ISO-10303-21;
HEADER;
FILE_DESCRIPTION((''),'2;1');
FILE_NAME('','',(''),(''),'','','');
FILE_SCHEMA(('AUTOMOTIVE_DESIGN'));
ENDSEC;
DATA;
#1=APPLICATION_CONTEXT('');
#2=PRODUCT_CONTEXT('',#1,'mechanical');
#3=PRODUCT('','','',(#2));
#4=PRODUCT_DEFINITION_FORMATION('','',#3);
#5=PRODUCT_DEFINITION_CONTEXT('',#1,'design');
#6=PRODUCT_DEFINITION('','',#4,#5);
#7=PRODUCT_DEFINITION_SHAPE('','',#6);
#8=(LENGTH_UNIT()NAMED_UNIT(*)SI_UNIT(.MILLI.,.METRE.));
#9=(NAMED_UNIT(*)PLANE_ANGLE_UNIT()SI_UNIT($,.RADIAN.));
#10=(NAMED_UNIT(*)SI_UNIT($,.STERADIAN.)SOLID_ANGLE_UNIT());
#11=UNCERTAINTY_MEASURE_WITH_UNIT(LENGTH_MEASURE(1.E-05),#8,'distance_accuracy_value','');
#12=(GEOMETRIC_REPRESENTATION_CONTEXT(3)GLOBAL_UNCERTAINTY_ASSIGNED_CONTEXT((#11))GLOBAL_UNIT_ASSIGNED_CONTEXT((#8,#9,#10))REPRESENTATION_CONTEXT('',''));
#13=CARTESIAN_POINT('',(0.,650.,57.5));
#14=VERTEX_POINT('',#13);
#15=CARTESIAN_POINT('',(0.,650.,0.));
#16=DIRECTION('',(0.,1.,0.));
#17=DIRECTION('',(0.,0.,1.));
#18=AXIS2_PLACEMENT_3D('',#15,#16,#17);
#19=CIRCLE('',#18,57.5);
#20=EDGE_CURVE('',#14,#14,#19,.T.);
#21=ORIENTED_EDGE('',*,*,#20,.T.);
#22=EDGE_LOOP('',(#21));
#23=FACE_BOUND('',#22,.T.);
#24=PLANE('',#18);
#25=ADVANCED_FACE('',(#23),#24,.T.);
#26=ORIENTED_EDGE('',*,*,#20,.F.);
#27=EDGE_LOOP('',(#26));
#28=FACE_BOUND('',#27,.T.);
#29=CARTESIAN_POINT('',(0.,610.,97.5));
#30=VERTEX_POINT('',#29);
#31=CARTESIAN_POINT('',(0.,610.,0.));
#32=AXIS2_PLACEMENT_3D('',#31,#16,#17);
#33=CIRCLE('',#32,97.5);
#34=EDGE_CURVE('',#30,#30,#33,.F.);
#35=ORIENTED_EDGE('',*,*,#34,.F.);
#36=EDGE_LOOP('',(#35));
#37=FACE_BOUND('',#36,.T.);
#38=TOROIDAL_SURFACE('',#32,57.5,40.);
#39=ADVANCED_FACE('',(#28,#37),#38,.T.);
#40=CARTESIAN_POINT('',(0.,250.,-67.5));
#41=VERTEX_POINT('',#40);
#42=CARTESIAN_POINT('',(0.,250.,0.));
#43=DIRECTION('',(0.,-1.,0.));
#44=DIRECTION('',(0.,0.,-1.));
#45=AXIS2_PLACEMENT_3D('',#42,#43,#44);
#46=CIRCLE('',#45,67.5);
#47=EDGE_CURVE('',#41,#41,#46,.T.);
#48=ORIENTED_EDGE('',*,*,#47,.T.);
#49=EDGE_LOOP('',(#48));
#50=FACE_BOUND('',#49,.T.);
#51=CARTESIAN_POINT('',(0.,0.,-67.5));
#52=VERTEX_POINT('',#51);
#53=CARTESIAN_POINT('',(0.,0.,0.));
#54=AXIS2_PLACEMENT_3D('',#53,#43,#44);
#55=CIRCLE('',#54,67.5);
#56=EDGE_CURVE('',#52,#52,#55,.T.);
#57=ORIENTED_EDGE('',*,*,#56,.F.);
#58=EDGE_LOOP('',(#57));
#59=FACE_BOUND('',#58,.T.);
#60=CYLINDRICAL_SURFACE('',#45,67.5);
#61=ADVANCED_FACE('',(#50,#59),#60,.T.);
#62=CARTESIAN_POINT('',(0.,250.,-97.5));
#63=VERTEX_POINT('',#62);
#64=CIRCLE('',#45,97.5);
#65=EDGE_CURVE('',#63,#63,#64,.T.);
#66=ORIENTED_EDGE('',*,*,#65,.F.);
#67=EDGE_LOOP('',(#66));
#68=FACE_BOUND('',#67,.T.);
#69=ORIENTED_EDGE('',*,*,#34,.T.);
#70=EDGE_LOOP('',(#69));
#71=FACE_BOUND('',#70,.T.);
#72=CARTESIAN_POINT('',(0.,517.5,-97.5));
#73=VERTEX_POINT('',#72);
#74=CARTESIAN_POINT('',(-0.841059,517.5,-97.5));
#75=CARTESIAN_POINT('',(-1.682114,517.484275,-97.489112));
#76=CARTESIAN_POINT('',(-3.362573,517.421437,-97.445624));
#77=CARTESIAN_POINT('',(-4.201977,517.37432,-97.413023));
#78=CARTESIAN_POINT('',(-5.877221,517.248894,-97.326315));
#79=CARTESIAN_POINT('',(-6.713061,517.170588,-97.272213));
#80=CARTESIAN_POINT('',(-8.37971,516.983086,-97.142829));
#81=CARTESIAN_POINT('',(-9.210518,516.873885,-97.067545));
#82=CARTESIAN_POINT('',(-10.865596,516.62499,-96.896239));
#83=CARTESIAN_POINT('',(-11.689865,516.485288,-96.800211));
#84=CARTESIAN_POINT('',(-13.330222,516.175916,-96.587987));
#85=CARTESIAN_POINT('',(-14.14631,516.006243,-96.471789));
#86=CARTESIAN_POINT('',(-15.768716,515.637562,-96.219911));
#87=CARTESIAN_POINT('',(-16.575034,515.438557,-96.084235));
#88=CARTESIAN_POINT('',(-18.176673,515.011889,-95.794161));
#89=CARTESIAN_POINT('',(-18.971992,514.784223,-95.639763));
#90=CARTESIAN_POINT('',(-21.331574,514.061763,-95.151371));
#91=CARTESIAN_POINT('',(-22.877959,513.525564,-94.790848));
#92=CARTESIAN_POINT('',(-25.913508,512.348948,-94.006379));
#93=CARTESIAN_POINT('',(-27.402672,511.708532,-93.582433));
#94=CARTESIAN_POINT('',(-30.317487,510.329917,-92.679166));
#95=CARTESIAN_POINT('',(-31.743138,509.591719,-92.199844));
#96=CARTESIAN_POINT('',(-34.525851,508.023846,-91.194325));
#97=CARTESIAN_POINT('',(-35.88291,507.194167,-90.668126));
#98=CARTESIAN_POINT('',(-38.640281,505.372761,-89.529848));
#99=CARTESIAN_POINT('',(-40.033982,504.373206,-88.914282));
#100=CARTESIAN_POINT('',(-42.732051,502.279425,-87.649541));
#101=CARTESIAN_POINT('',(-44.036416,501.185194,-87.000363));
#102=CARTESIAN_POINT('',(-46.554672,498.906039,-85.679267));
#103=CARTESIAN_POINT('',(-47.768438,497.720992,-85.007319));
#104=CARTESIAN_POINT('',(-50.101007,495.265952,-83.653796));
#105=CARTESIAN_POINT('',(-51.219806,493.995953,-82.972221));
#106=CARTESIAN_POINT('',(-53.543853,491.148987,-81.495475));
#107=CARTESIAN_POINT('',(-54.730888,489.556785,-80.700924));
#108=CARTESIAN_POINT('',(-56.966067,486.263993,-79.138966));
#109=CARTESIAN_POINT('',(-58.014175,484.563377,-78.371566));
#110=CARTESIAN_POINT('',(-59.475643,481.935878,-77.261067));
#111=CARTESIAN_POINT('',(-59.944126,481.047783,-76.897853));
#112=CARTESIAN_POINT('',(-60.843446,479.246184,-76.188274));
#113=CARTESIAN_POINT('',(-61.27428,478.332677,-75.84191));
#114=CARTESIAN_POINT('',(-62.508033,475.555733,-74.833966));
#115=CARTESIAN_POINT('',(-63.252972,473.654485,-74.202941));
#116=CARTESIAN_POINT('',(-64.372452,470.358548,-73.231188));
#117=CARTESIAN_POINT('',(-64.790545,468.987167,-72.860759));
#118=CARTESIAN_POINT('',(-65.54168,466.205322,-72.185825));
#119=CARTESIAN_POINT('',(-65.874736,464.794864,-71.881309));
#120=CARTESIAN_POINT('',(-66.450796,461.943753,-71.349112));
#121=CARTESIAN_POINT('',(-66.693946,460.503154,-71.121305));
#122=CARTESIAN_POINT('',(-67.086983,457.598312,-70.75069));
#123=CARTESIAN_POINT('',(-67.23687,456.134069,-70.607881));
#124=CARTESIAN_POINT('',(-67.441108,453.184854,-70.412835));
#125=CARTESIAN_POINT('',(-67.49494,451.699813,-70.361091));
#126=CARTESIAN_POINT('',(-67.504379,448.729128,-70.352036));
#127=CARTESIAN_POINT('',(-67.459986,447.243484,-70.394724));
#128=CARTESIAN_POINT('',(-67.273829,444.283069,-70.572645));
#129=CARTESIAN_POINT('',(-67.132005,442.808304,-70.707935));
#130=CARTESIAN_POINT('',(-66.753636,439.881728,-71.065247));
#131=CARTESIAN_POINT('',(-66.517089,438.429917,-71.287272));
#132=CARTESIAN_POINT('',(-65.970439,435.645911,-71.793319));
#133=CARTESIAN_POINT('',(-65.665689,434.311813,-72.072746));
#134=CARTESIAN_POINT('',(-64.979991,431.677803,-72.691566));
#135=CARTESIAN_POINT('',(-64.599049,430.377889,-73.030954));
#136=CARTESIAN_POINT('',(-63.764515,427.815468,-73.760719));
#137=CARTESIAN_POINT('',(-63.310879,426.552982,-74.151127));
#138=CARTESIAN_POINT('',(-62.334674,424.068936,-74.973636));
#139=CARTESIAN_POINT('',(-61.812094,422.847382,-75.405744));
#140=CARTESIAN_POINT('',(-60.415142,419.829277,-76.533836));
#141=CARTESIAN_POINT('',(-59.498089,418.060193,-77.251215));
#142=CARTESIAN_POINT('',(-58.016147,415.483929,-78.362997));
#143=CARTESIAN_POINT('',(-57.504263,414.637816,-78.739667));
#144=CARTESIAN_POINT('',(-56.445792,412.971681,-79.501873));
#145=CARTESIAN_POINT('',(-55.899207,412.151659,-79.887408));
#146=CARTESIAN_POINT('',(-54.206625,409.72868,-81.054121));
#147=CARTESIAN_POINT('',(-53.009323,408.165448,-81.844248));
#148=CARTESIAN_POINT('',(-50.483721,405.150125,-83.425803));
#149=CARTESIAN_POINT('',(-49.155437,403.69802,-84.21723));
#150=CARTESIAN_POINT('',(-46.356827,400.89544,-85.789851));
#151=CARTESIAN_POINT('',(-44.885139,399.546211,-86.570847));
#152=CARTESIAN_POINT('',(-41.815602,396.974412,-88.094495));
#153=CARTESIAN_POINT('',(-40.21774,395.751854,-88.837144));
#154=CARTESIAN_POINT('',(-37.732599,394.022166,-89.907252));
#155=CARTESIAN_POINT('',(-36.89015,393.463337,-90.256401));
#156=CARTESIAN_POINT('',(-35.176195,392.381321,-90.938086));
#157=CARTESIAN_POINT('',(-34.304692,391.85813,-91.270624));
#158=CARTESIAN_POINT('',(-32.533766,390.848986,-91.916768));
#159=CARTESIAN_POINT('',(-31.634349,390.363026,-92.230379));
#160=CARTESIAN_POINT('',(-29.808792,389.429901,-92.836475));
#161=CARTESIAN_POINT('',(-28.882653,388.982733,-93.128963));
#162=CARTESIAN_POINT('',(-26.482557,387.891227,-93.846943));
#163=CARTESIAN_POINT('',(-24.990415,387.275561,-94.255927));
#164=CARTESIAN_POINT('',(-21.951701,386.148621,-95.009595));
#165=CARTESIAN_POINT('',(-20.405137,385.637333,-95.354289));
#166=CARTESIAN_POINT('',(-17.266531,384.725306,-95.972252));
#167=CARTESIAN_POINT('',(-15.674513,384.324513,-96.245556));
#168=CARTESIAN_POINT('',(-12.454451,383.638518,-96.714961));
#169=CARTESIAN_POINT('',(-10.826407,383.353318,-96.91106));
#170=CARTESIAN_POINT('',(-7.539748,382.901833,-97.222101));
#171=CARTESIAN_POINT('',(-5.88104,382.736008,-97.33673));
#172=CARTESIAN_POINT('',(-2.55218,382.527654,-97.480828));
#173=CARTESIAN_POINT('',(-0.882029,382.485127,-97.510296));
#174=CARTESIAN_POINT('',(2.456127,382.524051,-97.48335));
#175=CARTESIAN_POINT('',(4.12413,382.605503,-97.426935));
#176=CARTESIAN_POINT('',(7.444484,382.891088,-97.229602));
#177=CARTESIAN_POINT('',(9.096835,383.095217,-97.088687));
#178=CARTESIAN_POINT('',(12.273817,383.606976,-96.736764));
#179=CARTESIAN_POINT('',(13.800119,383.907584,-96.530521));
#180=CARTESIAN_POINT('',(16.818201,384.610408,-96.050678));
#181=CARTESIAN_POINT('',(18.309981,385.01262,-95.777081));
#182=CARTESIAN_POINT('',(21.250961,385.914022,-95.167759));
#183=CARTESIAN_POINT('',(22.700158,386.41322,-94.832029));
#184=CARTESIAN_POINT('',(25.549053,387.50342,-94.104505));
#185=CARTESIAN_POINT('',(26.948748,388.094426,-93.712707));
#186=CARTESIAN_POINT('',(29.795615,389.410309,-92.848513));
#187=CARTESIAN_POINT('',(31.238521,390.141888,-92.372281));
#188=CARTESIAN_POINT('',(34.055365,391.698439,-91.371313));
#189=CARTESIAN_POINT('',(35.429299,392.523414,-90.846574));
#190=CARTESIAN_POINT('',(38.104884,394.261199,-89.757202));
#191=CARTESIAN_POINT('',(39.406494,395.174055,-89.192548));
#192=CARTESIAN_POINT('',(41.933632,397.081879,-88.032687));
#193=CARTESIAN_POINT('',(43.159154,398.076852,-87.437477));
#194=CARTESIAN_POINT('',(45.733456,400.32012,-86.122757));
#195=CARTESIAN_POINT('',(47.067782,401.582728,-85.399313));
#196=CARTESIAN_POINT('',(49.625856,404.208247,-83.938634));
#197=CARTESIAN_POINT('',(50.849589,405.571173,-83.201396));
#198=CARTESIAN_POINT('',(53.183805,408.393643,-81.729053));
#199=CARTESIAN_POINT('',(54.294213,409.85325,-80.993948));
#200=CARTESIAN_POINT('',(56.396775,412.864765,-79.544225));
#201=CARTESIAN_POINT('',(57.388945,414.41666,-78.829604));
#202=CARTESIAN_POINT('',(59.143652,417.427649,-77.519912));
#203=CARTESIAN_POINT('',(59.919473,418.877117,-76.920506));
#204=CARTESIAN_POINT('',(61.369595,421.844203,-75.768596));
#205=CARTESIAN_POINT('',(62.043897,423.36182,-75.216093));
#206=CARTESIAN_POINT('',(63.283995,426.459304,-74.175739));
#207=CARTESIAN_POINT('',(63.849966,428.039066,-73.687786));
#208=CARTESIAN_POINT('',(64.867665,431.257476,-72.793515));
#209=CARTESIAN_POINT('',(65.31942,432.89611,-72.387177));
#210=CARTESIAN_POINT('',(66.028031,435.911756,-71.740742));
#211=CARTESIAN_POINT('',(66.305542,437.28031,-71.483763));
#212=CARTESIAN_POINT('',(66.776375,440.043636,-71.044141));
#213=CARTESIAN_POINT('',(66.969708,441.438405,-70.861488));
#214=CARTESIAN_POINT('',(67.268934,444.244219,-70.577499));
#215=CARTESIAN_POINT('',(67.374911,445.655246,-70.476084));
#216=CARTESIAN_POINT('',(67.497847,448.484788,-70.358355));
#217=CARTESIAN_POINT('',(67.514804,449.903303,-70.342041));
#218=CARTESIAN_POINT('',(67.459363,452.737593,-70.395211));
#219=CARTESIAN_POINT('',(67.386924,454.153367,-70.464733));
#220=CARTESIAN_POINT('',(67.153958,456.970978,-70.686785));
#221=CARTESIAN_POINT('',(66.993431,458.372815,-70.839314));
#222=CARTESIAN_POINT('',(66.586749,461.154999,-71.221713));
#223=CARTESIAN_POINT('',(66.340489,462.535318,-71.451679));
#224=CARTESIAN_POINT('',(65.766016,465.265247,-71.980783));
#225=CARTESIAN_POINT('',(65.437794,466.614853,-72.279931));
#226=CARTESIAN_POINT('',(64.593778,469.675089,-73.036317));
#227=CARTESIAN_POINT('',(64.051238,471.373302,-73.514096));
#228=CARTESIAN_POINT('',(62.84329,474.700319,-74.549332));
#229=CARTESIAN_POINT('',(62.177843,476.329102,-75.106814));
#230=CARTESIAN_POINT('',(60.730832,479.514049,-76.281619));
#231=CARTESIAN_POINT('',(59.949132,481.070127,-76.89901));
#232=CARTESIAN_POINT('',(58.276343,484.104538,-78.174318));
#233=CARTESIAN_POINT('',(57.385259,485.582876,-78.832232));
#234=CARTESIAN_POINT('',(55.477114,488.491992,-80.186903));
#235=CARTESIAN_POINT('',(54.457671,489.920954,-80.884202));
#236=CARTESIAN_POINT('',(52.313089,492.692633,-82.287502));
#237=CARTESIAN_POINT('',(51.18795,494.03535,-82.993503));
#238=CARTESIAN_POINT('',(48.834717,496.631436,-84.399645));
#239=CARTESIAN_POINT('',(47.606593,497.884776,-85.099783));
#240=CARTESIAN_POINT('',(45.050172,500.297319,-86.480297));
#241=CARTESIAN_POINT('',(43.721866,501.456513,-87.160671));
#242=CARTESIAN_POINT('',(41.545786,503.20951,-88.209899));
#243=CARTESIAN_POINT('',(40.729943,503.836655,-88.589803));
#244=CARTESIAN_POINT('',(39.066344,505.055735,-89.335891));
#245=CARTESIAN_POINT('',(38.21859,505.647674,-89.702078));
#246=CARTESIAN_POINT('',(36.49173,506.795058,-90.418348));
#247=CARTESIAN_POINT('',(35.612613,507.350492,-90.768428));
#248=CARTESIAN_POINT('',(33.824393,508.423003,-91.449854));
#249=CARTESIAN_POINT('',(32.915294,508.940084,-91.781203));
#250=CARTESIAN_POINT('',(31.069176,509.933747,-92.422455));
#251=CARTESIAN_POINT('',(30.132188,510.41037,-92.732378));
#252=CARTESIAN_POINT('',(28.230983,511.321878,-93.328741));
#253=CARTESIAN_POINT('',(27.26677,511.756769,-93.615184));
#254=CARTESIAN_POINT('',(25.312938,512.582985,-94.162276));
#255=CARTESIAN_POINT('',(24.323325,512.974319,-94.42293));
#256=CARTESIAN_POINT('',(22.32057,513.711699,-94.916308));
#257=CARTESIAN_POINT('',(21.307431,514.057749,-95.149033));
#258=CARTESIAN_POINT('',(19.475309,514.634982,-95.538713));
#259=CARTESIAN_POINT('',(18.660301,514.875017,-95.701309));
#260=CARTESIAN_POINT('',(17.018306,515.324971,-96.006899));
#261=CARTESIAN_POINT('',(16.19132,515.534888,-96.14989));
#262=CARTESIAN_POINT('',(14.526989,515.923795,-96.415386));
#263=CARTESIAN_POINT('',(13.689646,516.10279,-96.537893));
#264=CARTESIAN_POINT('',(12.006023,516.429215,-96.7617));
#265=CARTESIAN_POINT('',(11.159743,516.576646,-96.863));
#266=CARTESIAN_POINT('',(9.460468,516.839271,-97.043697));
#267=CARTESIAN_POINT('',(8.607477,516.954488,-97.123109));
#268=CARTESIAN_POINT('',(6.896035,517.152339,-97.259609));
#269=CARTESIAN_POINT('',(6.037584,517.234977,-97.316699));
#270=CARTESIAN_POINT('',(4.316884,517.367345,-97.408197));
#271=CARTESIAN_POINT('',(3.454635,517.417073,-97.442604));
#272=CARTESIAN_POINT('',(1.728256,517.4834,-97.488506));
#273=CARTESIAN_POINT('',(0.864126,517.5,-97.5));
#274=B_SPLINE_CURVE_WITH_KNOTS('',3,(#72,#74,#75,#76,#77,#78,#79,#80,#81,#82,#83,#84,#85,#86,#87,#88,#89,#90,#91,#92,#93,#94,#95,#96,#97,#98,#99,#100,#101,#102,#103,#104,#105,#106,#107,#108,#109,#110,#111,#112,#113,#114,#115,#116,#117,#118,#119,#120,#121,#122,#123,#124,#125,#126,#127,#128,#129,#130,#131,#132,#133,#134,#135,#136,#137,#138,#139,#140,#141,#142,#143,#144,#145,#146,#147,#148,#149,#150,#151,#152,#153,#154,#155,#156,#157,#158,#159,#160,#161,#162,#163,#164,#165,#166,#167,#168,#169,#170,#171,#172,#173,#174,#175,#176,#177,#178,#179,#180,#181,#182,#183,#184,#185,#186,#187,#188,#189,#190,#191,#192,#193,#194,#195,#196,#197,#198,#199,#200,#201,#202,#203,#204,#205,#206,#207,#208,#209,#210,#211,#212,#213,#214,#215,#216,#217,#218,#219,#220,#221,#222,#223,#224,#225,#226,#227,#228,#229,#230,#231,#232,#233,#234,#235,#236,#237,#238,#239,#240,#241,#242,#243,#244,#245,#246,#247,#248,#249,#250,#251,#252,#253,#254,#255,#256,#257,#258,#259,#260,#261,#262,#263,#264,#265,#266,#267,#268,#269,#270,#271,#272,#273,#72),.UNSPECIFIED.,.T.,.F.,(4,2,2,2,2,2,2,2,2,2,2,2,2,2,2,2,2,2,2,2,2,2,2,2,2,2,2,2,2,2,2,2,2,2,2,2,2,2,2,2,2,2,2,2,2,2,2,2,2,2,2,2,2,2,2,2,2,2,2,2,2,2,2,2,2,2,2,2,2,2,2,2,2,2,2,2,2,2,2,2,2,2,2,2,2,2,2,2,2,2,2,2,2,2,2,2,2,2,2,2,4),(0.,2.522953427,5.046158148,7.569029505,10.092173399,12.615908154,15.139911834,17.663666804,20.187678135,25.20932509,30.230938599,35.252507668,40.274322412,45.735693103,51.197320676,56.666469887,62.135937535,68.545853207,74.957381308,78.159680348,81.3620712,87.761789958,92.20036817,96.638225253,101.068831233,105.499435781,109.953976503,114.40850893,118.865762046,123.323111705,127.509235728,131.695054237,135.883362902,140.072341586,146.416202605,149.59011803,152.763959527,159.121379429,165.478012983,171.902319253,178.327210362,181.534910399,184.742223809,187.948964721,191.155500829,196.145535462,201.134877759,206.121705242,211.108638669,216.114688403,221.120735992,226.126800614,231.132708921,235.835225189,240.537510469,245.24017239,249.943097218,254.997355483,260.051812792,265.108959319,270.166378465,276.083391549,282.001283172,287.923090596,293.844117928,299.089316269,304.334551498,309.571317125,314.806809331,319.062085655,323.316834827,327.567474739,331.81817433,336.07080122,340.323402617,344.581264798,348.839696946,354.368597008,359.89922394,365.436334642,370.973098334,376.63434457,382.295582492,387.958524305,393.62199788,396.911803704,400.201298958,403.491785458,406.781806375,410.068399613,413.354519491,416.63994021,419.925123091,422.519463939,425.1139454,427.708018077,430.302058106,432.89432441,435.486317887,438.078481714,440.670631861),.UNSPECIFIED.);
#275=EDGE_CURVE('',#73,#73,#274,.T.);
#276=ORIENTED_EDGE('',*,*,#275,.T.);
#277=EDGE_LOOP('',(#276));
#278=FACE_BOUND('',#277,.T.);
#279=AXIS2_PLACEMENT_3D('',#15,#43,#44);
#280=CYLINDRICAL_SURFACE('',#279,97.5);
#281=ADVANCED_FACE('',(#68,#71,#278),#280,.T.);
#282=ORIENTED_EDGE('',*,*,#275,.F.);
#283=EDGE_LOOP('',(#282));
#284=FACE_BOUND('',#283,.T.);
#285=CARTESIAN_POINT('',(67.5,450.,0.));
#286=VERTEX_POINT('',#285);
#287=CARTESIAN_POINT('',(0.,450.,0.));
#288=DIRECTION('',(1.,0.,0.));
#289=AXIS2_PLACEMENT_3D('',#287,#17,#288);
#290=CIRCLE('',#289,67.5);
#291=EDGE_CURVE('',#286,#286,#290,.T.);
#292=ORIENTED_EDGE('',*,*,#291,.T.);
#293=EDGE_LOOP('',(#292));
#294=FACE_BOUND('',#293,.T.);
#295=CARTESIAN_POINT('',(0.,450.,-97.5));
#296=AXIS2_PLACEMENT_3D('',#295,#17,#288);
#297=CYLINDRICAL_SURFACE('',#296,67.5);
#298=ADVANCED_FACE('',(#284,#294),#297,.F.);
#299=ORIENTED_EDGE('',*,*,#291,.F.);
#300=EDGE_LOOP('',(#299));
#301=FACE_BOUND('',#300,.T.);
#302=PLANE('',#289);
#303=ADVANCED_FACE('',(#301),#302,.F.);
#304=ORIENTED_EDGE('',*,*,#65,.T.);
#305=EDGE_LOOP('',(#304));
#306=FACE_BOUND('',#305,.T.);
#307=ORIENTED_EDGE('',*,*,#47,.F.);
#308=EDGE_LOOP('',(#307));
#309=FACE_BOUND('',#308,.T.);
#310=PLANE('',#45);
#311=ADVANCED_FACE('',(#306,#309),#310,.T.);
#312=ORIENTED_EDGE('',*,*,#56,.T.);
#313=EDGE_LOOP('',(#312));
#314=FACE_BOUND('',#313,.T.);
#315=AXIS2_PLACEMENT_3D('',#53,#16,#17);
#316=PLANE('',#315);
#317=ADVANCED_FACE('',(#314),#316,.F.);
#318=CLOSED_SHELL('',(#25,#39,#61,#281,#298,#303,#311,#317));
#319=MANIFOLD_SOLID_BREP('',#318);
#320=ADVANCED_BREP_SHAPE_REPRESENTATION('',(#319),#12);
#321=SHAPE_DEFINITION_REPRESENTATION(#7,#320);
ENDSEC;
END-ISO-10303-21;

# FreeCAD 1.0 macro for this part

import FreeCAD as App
import Part
import Sketcher
Q = App.Units.Quantity


def edges_at(feature, points):
    """Names of the edges that pass closest to the given points."""
    edges = feature.Shape.Edges
    near = lambda p: min(range(len(edges)), key=lambda i: edges[i].distToShape(Part.Vertex(*p))[0])
    return sorted({f"Edge{near(p) + 1}" for p in points})

doc = App.newDocument("Part")
body = doc.addObject("PartDesign::Body", "Body")

sketch1 = doc.addObject("Sketcher::SketchObject", "Sketch")
body.addObject(sketch1)
sketch1.AttachmentSupport = (doc.XZ_Plane, [""])
sketch1.MapMode = "FlatFace"
sketch1.addGeometry(Part.Circle(App.Vector(0, 0, 0), App.Vector(0, 0, 1), 98), False)
sketch1.addConstraint([
    Sketcher.Constraint("Coincident", 0, 3, -1, 1),
    Sketcher.Constraint("Diameter", 0, Q("195 mm")),
])
pad1 = doc.addObject("PartDesign::Pad", "Pad")
body.addObject(pad1)
pad1.Profile = sketch1
pad1.Length = 650
pad1.Reversed = True

sketch2 = doc.addObject("Sketcher::SketchObject", "Sketch001")
body.addObject(sketch2)
sketch2.AttachmentSupport = (doc.XZ_Plane, [""])
sketch2.MapMode = "FlatFace"
sketch2.addGeometry([
    Part.Circle(App.Vector(0, 0, 0), App.Vector(0, 0, 1), 98),
    Part.Circle(App.Vector(0, 0, 0), App.Vector(0, 0, 1), 68),
], False)
sketch2.addConstraint([
    Sketcher.Constraint("Coincident", 0, 3, -1, 1),
    Sketcher.Constraint("Coincident", 1, 3, -1, 1),
    Sketcher.Constraint("Diameter", 0, Q("195 mm")),
    Sketcher.Constraint("Diameter", 1, Q("135 mm")),
])
pocket1 = doc.addObject("PartDesign::Pocket", "Pocket")
body.addObject(pocket1)
pocket1.Profile = sketch2
pocket1.Length = 250

sketch3 = doc.addObject("Sketcher::SketchObject", "Sketch002")
body.addObject(sketch3)
sketch3.AttachmentSupport = (doc.XY_Plane, [""])
sketch3.MapMode = "FlatFace"
sketch3.addGeometry(Part.Circle(App.Vector(0, 450, 0), App.Vector(0, 0, 1), 68), False)
sketch3.addConstraint([
    Sketcher.Constraint("PointOnObject", 0, 3, -2),
    Sketcher.Constraint("Diameter", 0, Q("135 mm")),
    Sketcher.Constraint("DistanceY", -1, 1, 0, 3, Q("450 mm")),
])
pocket2 = doc.addObject("PartDesign::Pocket", "Pocket001")
body.addObject(pocket2)
pocket2.Profile = sketch3
pocket2.Type = "ThroughAll"
doc.recompute()

fillet = doc.addObject("PartDesign::Fillet", "Fillet")
body.addObject(fillet)
fillet.Base = (pocket2, edges_at(pocket2, [(-97.5, 650, 0)]))
fillet.Radius = 40

doc.recompute()
